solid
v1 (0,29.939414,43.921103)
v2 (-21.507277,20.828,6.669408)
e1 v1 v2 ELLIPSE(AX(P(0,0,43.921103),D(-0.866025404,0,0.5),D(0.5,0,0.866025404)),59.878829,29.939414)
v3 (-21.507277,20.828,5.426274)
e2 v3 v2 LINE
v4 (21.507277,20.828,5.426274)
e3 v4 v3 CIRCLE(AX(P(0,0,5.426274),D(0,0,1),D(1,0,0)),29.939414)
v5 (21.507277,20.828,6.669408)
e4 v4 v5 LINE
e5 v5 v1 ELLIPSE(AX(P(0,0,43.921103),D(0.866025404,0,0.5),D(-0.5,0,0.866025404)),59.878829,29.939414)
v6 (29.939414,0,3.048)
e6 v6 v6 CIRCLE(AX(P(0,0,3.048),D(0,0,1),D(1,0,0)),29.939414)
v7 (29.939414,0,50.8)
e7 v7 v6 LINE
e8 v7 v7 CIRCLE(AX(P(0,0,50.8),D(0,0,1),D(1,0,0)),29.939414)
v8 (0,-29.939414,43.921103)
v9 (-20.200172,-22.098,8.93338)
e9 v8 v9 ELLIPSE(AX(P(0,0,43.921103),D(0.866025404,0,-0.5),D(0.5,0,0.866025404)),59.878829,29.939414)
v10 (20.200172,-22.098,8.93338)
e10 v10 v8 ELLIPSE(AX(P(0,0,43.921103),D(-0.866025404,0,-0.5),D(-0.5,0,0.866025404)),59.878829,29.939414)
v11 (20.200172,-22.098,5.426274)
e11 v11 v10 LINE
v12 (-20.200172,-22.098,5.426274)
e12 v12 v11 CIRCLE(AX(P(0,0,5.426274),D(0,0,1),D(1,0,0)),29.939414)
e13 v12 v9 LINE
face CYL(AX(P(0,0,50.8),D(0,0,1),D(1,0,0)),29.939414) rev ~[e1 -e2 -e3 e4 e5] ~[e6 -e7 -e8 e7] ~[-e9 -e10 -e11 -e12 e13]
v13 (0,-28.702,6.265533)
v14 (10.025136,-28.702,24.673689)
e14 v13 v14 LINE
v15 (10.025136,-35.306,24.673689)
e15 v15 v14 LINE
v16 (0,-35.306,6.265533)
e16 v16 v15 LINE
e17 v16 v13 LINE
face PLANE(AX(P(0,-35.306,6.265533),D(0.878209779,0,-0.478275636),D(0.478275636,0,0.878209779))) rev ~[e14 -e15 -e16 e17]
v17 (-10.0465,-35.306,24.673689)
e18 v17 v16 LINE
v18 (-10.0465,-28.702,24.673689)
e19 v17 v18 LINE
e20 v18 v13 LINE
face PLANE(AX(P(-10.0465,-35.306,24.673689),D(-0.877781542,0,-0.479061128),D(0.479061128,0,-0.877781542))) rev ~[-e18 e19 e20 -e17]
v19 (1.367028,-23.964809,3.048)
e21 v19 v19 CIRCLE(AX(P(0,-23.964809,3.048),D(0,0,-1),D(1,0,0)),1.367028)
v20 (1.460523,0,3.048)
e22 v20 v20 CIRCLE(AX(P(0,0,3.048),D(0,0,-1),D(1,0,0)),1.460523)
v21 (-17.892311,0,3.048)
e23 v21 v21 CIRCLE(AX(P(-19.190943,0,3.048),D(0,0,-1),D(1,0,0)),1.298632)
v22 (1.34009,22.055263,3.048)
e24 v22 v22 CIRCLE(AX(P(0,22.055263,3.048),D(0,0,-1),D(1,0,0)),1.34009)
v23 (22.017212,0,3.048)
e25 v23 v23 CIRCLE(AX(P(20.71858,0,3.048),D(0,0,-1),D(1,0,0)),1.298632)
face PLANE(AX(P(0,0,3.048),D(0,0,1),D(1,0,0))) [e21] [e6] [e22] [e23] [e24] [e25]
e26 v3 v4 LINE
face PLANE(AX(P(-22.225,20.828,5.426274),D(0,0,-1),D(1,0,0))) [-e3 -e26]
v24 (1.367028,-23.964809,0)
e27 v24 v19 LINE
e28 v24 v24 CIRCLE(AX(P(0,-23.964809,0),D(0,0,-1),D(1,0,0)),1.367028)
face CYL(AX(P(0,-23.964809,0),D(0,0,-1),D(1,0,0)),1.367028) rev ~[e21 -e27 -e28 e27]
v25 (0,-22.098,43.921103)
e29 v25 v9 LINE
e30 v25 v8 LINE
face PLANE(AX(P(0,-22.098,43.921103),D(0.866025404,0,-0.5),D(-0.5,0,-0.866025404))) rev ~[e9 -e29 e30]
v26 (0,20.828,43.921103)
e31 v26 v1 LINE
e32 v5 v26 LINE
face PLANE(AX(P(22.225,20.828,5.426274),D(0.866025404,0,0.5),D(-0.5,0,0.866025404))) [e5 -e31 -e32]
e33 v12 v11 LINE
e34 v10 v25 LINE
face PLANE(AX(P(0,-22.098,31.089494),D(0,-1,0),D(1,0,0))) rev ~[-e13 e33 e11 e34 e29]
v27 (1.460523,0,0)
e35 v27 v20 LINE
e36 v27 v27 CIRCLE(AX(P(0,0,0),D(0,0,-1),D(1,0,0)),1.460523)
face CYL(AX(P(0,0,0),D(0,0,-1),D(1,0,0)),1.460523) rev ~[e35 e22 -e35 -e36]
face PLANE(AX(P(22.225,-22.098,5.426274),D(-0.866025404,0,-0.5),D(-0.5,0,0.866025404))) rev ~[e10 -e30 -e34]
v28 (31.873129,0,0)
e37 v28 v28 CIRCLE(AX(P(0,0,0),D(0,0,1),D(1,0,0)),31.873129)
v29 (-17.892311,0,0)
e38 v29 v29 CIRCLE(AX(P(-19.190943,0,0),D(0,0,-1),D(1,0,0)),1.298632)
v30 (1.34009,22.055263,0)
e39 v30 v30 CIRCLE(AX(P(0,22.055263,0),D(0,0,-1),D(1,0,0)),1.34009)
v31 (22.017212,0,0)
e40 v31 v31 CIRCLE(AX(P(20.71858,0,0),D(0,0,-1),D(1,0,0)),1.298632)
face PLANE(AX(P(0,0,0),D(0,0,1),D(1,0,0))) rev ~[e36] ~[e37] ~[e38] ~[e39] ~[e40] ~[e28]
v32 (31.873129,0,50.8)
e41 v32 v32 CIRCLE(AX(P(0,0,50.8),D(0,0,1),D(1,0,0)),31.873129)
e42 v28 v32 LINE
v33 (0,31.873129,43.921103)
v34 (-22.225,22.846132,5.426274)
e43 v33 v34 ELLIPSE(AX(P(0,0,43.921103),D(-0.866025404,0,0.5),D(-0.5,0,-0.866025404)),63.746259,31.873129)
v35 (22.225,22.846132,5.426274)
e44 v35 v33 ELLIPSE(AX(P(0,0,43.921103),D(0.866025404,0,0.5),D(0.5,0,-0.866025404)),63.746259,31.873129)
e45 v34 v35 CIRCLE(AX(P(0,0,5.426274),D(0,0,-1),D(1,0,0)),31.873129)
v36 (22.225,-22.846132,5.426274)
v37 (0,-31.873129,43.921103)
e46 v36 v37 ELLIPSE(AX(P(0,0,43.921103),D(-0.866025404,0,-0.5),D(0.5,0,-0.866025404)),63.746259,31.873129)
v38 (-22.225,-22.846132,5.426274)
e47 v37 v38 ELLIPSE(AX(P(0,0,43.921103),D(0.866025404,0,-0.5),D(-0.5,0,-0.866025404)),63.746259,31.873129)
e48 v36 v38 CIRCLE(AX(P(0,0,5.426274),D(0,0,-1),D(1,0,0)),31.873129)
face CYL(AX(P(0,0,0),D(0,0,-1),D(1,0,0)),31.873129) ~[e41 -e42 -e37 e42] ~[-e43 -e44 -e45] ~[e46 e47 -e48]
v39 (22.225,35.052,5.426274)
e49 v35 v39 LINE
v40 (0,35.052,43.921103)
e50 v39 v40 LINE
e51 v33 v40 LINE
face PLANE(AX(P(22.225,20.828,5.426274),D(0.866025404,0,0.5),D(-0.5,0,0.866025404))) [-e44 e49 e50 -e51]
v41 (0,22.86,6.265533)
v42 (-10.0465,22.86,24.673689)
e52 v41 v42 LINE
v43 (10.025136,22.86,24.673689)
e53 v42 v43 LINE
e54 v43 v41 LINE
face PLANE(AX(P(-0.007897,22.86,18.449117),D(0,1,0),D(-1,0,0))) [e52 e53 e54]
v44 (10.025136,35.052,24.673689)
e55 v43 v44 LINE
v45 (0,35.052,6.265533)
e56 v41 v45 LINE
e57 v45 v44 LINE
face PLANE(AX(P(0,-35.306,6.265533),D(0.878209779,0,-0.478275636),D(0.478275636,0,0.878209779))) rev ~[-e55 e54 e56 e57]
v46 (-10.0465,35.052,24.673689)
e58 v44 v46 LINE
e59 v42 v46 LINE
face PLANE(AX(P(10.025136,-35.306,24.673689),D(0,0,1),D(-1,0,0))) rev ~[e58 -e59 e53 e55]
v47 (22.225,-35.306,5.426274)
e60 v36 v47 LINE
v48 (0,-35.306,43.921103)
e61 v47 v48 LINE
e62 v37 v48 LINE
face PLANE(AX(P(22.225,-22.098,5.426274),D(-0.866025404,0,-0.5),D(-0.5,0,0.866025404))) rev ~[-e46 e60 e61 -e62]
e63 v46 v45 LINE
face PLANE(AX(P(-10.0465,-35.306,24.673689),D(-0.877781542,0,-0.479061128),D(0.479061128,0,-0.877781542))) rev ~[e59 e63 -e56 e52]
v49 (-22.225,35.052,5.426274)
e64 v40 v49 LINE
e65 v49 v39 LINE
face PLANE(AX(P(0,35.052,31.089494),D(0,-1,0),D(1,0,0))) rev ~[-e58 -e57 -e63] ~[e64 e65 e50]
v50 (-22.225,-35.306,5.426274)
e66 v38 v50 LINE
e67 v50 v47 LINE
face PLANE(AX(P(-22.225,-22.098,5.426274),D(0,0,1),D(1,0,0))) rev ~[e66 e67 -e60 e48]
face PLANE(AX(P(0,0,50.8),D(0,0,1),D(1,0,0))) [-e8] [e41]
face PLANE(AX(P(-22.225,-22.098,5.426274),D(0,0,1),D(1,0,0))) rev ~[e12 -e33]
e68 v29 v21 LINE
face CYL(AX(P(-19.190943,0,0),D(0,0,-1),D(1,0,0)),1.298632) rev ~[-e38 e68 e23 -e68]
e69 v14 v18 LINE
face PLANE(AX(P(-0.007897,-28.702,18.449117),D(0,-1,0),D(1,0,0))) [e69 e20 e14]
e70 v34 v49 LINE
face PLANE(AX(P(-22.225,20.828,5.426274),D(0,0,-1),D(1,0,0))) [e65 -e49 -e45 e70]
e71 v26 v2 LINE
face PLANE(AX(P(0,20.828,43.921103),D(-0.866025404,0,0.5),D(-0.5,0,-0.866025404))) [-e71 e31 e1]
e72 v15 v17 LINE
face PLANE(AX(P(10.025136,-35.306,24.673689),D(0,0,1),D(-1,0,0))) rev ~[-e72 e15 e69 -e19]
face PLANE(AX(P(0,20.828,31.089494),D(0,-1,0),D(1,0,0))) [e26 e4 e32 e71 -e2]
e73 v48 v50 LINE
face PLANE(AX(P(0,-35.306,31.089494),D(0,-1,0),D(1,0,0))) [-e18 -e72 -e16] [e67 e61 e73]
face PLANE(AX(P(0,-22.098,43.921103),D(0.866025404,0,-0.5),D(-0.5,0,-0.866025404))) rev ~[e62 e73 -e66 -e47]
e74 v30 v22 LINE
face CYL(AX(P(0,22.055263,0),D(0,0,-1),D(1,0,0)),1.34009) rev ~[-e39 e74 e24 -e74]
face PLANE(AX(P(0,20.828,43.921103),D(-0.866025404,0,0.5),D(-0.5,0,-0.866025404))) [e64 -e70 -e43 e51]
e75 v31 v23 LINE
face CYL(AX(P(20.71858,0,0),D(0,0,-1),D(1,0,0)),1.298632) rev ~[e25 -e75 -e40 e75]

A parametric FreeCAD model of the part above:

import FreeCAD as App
import Part
import Sketcher

V = App.Vector
Q = App.Units.Quantity


def add_polygon(sketch, points):
    """Adds a closed chain of lines whose ends are joined by coincident constraints."""
    first, n = sketch.GeometryCount, len(points)
    for a, b in zip(points, points[1:] + points[:1]):
        sketch.addGeometry(Part.LineSegment(App.Vector(*a, 0), App.Vector(*b, 0)), False)
    for i in range(n):
        sketch.addConstraint(Sketcher.Constraint("Coincident", first + i, 2, first + (i + 1) % n, 1))

doc = App.newDocument("Part")
body = doc.addObject("PartDesign::Body", "Body")

sketch1 = body.newObject("Sketcher::SketchObject", "Sketch")
sketch1.AttachmentSupport = (doc.getObject("XY_Plane"), [""])
sketch1.MapMode = "FlatFace"
sketch1.addGeometry(Part.Circle(V(0, 0, 0), V(0, 0, 1), 32), False)
sketch1.addConstraint([
    Sketcher.Constraint("Coincident", 0, 3, -1, 1),
    Sketcher.Constraint("Diameter", 0, 63.746259),
])
pad1 = body.newObject("PartDesign::Pad", "Pad")
pad1.Profile = sketch1
pad1.Length = Q("2 in")

sketch2 = body.newObject("Sketcher::SketchObject", "Sketch001")
sketch2.AttachmentSupport = (doc.getObject("XY_Plane"), [""])
sketch2.MapMode = "FlatFace"
sketch2.AttachmentOffset = App.Placement(V(0, 0, 2 * 25.4), App.Rotation())
sketch2.addGeometry(Part.Circle(V(0, 0, 0), V(0, 0, 1), 30), False)
sketch2.addConstraint([
    Sketcher.Constraint("Coincident", 0, 3, -1, 1),
    Sketcher.Constraint("Diameter", 0, 59.878829),
])
pocket1 = body.newObject("PartDesign::Pocket", "Pocket")
pocket1.Profile = sketch2
pocket1.Length = Q("1.88 in")

sketch3 = body.newObject("Sketcher::SketchObject", "Sketch002")
sketch3.AttachmentSupport = (doc.getObject("XY_Plane"), [""])
sketch3.MapMode = "FlatFace"
sketch3.addGeometry([
    Part.Circle(V(0, -24, 0), V(0, 0, 1), 1.4),
    Part.Circle(V(0, 0, 0), V(0, 0, 1), 1.5),
    Part.Circle(V(0, 22.1, 0), V(0, 0, 1), 1.3),
    Part.Circle(V(-19.2, 0, 0), V(0, 0, 1), 1.3),
    Part.Circle(V(20.7, 0, 0), V(0, 0, 1), 1.3),
], False)
sketch3.addConstraint([
    Sketcher.Constraint("Coincident", 1, 3, -1, 1),
    Sketcher.Constraint("Equal", 3, 4),
    Sketcher.Constraint("PointOnObject", 0, 3, -2),
    Sketcher.Constraint("PointOnObject", 2, 3, -2),
    Sketcher.Constraint("PointOnObject", 3, 3, -1),
    Sketcher.Constraint("PointOnObject", 4, 3, -1),
    Sketcher.Constraint("Diameter", 2, 2.68018),
    Sketcher.Constraint("Diameter", 0, 2.734055),
    Sketcher.Constraint("Diameter", 1, 2.921045),
    Sketcher.Constraint("Diameter", 3, 2.597264),
    Sketcher.Constraint("DistanceY", 0, 3, -1, 1, 23.964809),
    Sketcher.Constraint("DistanceX", -1, 1, 4, 3, 20.71858),
    Sketcher.Constraint("DistanceY", 0, 3, 2, 3, 46.020072),
    Sketcher.Constraint("DistanceX", 3, 3, -1, 1, 19.190943),
])
pocket2 = body.newObject("PartDesign::Pocket", "Pocket001")
pocket2.Profile = sketch3
pocket2.Length = Q("1 in")
pocket2.Reversed = True

sketch4 = body.newObject("Sketcher::SketchObject", "Sketch003")
sketch4.AttachmentSupport = (doc.getObject("XY_Plane"), [""])
sketch4.MapMode = "FlatFace"
sketch4.addGeometry([
    Part.Circle(V(0, -24, 0), V(0, 0, 1), 1.4),
    Part.Circle(V(0, 0, 0), V(0, 0, 1), 1.5),
    Part.Circle(V(0, 22.1, 0), V(0, 0, 1), 1.3),
    Part.Circle(V(-19.2, 0, 0), V(0, 0, 1), 1.3),
    Part.Circle(V(20.7, 0, 0), V(0, 0, 1), 1.3),
], False)
sketch4.addConstraint([
    Sketcher.Constraint("Coincident", 1, 3, -1, 1),
    Sketcher.Constraint("Equal", 3, 4),
    Sketcher.Constraint("PointOnObject", 0, 3, -2),
    Sketcher.Constraint("PointOnObject", 2, 3, -2),
    Sketcher.Constraint("PointOnObject", 3, 3, -1),
    Sketcher.Constraint("PointOnObject", 4, 3, -1),
    Sketcher.Constraint("Diameter", 2, 2.68018),
    Sketcher.Constraint("Diameter", 0, 2.734055),
    Sketcher.Constraint("Diameter", 1, 2.921045),
    Sketcher.Constraint("Diameter", 3, 2.597264),
    Sketcher.Constraint("DistanceY", 0, 3, -1, 1, 23.964809),
    Sketcher.Constraint("DistanceX", -1, 1, 4, 3, 20.71858),
    Sketcher.Constraint("DistanceY", 0, 3, 2, 3, 46.020072),
    Sketcher.Constraint("DistanceX", 3, 3, -1, 1, 19.190943),
])
pocket3 = body.newObject("PartDesign::Pocket", "Pocket002")
pocket3.Profile = sketch4
pocket3.Length = Q("1 in")
pocket3.Reversed = True

sketch5 = body.newObject("Sketcher::SketchObject", "Sketch004")
sketch5.AttachmentSupport = (doc.getObject("XZ_Plane"), [""])
sketch5.MapMode = "FlatFace"
sketch5.AttachmentOffset = App.Placement(V(0, 0, 0.87 * 25.4), App.Rotation())
add_polygon(sketch5, [(0, 44), (-22, 5), (22, 5)])
sketch5.addConstraint([
    Sketcher.Constraint("Horizontal", 1),
    Sketcher.Constraint("PointOnObject", 2, 2, -2),
    Sketcher.Constraint("Equal", 0, 2),
    Sketcher.Constraint("Angle", 0, Q("-120 deg")),
    Sketcher.Constraint("DistanceX", 1, 1, 1, 2, Q("1.75 in")),
    Sketcher.Constraint("DistanceY", -1, 1, 0, 2, 5.426274),
])
pad2 = body.newObject("PartDesign::Pad", "Pad001")
pad2.Profile = sketch5
pad2.Length = Q("0.52 in")

sketch6 = body.newObject("Sketcher::SketchObject", "Sketch005")
sketch6.AttachmentSupport = (doc.getObject("XZ_Plane"), [""])
sketch6.MapMode = "FlatFace"
sketch6.AttachmentOffset = App.Placement(V(0, 0, 1.39 * 25.4), App.Rotation())
add_polygon(sketch6, [(10, 25), (-10, 25), (0, 6)])
sketch6.addConstraint([
    Sketcher.Constraint("Horizontal", 0),
    Sketcher.Constraint("PointOnObject", 1, 2, -2),
    Sketcher.Constraint("Distance", 2, 20.961001),
    Sketcher.Constraint("DistanceX", 0, 2, -1, 1, 10.0465),
    Sketcher.Constraint("DistanceX", 0, 2, 0, 1, 20.071636),
    Sketcher.Constraint("DistanceY", -1, 1, 0, 2, 24.673689),
])
pocket4 = body.newObject("PartDesign::Pocket", "Pocket003")
pocket4.Profile = sketch6
pocket4.Type = "ThroughAll"

sketch7 = body.newObject("Sketcher::SketchObject", "Sketch006")
sketch7.AttachmentSupport = (doc.getObject("XZ_Plane"), [""])
sketch7.MapMode = "FlatFace"
sketch7.AttachmentOffset = App.Placement(V(0, 0, -0.82 * 25.4), App.Rotation())
add_polygon(sketch7, [(0, 44), (-22, 5), (22, 5)])
sketch7.addConstraint([
    Sketcher.Constraint("Horizontal", 1),
    Sketcher.Constraint("PointOnObject", 2, 2, -2),
    Sketcher.Constraint("Equal", 0, 2),
    Sketcher.Constraint("Angle", 0, Q("-120 deg")),
    Sketcher.Constraint("DistanceX", 1, 1, 1, 2, Q("1.75 in")),
    Sketcher.Constraint("DistanceY", -1, 1, 0, 2, 5.426274),
])
pad3 = body.newObject("PartDesign::Pad", "Pad002")
pad3.Profile = sketch7
pad3.Length = Q("0.56 in")
pad3.Reversed = True

sketch8 = body.newObject("Sketcher::SketchObject", "Sketch007")
sketch8.AttachmentSupport = (doc.getObject("XZ_Plane"), [""])
sketch8.MapMode = "FlatFace"
sketch8.AttachmentOffset = App.Placement(V(0, 0, 1.39 * 25.4), App.Rotation())
add_polygon(sketch8, [(10, 25), (-10, 25), (0, 6)])
sketch8.addConstraint([
    Sketcher.Constraint("Horizontal", 0),
    Sketcher.Constraint("PointOnObject", 1, 2, -2),
    Sketcher.Constraint("Distance", 2, 20.961001),
    Sketcher.Constraint("DistanceX", 0, 2, -1, 1, 10.0465),
    Sketcher.Constraint("DistanceX", 0, 2, 0, 1, 20.071636),
    Sketcher.Constraint("DistanceY", -1, 1, 0, 2, 24.673689),
])
pocket5 = body.newObject("PartDesign::Pocket", "Pocket004")
pocket5.Profile = sketch8
pocket5.Type = "ThroughAll"

sketch9 = body.newObject("Sketcher::SketchObject", "Sketch008")
sketch9.AttachmentSupport = (doc.getObject("XZ_Plane"), [""])
sketch9.MapMode = "FlatFace"
sketch9.AttachmentOffset = App.Placement(V(0, 0, -0.9 * 25.4), App.Rotation())
add_polygon(sketch9, [(-10, 25), (10, 25), (0, 6)])
sketch9.addConstraint([
    Sketcher.Constraint("Horizontal", 0),
    Sketcher.Constraint("PointOnObject", 1, 2, -2),
    Sketcher.Constraint("Distance", 1, 20.961001),
    Sketcher.Constraint("DistanceX", 2, 2, -1, 1, 10.0465),
    Sketcher.Constraint("DistanceX", 0, 1, 0, 2, 20.071636),
    Sketcher.Constraint("DistanceY", -1, 1, 0, 2, 24.673689),
])
pad4 = body.newObject("PartDesign::Pad", "Pad003")
pad4.Profile = sketch9
pad4.Length = Q("0.08 in")

sketch10 = body.newObject("Sketcher::SketchObject", "Sketch009")
sketch10.AttachmentSupport = (doc.getObject("XZ_Plane"), [""])
sketch10.MapMode = "FlatFace"
sketch10.AttachmentOffset = App.Placement(V(0, 0, 1.13 * 25.4), App.Rotation())
add_polygon(sketch10, [(10, 25), (-10, 25), (0, 6)])
sketch10.addConstraint([
    Sketcher.Constraint("Horizontal", 0),
    Sketcher.Constraint("PointOnObject", 1, 2, -2),
    Sketcher.Constraint("Distance", 2, 20.961001),
    Sketcher.Constraint("DistanceX", 0, 2, -1, 1, 10.0465),
    Sketcher.Constraint("DistanceX", 0, 2, 0, 1, 20.071636),
    Sketcher.Constraint("DistanceY", -1, 1, 0, 2, 24.673689),
])
pad5 = body.newObject("PartDesign::Pad", "Pad004")
pad5.Profile = sketch10
pad5.Length = Q("0.26 in")
pad5.Reversed = True

doc.recompute()
